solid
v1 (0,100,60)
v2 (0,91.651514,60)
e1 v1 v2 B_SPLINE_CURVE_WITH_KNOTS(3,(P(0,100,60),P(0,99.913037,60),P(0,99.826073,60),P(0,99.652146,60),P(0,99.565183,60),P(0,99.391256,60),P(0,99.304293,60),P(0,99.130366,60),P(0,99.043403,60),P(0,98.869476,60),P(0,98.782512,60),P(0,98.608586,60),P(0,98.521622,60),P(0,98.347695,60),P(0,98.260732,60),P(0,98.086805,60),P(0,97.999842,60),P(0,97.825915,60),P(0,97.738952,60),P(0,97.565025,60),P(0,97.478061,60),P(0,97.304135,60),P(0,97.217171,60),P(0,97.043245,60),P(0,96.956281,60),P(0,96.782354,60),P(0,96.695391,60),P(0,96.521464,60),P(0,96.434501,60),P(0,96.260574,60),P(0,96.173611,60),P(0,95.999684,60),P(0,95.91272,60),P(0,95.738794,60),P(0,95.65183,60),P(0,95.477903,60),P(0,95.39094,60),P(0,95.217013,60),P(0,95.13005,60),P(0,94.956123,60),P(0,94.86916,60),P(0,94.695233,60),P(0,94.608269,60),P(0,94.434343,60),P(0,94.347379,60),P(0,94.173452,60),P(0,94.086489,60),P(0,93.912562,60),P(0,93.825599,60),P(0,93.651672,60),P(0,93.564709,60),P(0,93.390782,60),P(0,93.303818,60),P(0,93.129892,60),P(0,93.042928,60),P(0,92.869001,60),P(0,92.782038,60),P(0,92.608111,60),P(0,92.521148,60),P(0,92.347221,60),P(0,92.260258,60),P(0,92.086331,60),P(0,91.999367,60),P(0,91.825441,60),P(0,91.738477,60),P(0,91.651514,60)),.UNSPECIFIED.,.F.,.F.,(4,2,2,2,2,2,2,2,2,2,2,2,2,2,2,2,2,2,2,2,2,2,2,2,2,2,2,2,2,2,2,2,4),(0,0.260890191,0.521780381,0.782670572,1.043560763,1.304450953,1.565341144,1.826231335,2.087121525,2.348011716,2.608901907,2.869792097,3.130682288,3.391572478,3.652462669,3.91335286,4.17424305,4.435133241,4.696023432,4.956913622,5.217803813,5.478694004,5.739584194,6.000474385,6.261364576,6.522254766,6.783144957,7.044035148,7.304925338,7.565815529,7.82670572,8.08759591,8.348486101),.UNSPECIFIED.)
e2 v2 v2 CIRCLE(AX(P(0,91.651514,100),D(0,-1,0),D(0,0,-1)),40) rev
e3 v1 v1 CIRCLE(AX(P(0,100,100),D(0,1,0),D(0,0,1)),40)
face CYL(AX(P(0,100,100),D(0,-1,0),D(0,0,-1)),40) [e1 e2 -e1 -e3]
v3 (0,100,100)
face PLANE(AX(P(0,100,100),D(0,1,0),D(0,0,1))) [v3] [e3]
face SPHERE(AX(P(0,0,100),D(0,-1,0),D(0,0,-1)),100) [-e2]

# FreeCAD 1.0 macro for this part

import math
import FreeCAD as App
import Part
import Sketcher
from FreeCAD import Vector
Q = App.Units.Quantity

doc = App.newDocument("Part")
body = doc.addObject("PartDesign::Body", "Body")

# Sketch on XZ plane
sketch1 = doc.addObject("Sketcher::SketchObject", "Sketch")
body.addObject(sketch1)
sketch1.AttachmentSupport = (doc.XZ_Plane, [""])
sketch1.MapMode = "FlatFace"
sketch1.addGeometry([
    Part.LineSegment(Vector(0, 0, 0), Vector(0, 200, 0)),
    Part.ArcOfCircle(Part.Circle(Vector(0, 100, 0), Vector(0, 0, 1), 100), math.radians(-90), math.radians(90)),
], False)
sketch1.addConstraint([
    Sketcher.Constraint("Coincident", 0, 1, 1, 1),
    Sketcher.Constraint("Coincident", 1, 2, 0, 2),
    Sketcher.Constraint("Vertical", 0),
    Sketcher.Constraint("Coincident", 0, 1, -1, 1),
    Sketcher.Constraint("PointOnObject", 1, 3, -2),
    Sketcher.Constraint("Radius", 1, Q("100 mm")),
])
revolution = doc.addObject("PartDesign::Revolution", "Revolution")
body.addObject(revolution)
revolution.Profile = sketch1
revolution.ReferenceAxis = (sketch1, ["V_Axis"])
revolution.Angle = 360

# Sketch on XZ plane
sketch2 = doc.addObject("Sketcher::SketchObject", "Sketch001")
body.addObject(sketch2)
sketch2.AttachmentSupport = (doc.XZ_Plane, [""])
sketch2.MapMode = "FlatFace"
sketch2.addGeometry(Part.Circle(Vector(0, 100, 0), Vector(0, 0, 1), 40), False)
sketch2.addConstraint([
    Sketcher.Constraint("PointOnObject", 0, 3, -2),
    Sketcher.Constraint("Diameter", 0, Q("80 mm")),
    Sketcher.Constraint("DistanceY", -1, 1, 0, 3, Q("100 mm")),
])
pad1 = doc.addObject("PartDesign::Pad", "Pad")
body.addObject(pad1)
pad1.Profile = sketch2
pad1.Length = 100
pad1.Reversed = True

doc.recompute()
